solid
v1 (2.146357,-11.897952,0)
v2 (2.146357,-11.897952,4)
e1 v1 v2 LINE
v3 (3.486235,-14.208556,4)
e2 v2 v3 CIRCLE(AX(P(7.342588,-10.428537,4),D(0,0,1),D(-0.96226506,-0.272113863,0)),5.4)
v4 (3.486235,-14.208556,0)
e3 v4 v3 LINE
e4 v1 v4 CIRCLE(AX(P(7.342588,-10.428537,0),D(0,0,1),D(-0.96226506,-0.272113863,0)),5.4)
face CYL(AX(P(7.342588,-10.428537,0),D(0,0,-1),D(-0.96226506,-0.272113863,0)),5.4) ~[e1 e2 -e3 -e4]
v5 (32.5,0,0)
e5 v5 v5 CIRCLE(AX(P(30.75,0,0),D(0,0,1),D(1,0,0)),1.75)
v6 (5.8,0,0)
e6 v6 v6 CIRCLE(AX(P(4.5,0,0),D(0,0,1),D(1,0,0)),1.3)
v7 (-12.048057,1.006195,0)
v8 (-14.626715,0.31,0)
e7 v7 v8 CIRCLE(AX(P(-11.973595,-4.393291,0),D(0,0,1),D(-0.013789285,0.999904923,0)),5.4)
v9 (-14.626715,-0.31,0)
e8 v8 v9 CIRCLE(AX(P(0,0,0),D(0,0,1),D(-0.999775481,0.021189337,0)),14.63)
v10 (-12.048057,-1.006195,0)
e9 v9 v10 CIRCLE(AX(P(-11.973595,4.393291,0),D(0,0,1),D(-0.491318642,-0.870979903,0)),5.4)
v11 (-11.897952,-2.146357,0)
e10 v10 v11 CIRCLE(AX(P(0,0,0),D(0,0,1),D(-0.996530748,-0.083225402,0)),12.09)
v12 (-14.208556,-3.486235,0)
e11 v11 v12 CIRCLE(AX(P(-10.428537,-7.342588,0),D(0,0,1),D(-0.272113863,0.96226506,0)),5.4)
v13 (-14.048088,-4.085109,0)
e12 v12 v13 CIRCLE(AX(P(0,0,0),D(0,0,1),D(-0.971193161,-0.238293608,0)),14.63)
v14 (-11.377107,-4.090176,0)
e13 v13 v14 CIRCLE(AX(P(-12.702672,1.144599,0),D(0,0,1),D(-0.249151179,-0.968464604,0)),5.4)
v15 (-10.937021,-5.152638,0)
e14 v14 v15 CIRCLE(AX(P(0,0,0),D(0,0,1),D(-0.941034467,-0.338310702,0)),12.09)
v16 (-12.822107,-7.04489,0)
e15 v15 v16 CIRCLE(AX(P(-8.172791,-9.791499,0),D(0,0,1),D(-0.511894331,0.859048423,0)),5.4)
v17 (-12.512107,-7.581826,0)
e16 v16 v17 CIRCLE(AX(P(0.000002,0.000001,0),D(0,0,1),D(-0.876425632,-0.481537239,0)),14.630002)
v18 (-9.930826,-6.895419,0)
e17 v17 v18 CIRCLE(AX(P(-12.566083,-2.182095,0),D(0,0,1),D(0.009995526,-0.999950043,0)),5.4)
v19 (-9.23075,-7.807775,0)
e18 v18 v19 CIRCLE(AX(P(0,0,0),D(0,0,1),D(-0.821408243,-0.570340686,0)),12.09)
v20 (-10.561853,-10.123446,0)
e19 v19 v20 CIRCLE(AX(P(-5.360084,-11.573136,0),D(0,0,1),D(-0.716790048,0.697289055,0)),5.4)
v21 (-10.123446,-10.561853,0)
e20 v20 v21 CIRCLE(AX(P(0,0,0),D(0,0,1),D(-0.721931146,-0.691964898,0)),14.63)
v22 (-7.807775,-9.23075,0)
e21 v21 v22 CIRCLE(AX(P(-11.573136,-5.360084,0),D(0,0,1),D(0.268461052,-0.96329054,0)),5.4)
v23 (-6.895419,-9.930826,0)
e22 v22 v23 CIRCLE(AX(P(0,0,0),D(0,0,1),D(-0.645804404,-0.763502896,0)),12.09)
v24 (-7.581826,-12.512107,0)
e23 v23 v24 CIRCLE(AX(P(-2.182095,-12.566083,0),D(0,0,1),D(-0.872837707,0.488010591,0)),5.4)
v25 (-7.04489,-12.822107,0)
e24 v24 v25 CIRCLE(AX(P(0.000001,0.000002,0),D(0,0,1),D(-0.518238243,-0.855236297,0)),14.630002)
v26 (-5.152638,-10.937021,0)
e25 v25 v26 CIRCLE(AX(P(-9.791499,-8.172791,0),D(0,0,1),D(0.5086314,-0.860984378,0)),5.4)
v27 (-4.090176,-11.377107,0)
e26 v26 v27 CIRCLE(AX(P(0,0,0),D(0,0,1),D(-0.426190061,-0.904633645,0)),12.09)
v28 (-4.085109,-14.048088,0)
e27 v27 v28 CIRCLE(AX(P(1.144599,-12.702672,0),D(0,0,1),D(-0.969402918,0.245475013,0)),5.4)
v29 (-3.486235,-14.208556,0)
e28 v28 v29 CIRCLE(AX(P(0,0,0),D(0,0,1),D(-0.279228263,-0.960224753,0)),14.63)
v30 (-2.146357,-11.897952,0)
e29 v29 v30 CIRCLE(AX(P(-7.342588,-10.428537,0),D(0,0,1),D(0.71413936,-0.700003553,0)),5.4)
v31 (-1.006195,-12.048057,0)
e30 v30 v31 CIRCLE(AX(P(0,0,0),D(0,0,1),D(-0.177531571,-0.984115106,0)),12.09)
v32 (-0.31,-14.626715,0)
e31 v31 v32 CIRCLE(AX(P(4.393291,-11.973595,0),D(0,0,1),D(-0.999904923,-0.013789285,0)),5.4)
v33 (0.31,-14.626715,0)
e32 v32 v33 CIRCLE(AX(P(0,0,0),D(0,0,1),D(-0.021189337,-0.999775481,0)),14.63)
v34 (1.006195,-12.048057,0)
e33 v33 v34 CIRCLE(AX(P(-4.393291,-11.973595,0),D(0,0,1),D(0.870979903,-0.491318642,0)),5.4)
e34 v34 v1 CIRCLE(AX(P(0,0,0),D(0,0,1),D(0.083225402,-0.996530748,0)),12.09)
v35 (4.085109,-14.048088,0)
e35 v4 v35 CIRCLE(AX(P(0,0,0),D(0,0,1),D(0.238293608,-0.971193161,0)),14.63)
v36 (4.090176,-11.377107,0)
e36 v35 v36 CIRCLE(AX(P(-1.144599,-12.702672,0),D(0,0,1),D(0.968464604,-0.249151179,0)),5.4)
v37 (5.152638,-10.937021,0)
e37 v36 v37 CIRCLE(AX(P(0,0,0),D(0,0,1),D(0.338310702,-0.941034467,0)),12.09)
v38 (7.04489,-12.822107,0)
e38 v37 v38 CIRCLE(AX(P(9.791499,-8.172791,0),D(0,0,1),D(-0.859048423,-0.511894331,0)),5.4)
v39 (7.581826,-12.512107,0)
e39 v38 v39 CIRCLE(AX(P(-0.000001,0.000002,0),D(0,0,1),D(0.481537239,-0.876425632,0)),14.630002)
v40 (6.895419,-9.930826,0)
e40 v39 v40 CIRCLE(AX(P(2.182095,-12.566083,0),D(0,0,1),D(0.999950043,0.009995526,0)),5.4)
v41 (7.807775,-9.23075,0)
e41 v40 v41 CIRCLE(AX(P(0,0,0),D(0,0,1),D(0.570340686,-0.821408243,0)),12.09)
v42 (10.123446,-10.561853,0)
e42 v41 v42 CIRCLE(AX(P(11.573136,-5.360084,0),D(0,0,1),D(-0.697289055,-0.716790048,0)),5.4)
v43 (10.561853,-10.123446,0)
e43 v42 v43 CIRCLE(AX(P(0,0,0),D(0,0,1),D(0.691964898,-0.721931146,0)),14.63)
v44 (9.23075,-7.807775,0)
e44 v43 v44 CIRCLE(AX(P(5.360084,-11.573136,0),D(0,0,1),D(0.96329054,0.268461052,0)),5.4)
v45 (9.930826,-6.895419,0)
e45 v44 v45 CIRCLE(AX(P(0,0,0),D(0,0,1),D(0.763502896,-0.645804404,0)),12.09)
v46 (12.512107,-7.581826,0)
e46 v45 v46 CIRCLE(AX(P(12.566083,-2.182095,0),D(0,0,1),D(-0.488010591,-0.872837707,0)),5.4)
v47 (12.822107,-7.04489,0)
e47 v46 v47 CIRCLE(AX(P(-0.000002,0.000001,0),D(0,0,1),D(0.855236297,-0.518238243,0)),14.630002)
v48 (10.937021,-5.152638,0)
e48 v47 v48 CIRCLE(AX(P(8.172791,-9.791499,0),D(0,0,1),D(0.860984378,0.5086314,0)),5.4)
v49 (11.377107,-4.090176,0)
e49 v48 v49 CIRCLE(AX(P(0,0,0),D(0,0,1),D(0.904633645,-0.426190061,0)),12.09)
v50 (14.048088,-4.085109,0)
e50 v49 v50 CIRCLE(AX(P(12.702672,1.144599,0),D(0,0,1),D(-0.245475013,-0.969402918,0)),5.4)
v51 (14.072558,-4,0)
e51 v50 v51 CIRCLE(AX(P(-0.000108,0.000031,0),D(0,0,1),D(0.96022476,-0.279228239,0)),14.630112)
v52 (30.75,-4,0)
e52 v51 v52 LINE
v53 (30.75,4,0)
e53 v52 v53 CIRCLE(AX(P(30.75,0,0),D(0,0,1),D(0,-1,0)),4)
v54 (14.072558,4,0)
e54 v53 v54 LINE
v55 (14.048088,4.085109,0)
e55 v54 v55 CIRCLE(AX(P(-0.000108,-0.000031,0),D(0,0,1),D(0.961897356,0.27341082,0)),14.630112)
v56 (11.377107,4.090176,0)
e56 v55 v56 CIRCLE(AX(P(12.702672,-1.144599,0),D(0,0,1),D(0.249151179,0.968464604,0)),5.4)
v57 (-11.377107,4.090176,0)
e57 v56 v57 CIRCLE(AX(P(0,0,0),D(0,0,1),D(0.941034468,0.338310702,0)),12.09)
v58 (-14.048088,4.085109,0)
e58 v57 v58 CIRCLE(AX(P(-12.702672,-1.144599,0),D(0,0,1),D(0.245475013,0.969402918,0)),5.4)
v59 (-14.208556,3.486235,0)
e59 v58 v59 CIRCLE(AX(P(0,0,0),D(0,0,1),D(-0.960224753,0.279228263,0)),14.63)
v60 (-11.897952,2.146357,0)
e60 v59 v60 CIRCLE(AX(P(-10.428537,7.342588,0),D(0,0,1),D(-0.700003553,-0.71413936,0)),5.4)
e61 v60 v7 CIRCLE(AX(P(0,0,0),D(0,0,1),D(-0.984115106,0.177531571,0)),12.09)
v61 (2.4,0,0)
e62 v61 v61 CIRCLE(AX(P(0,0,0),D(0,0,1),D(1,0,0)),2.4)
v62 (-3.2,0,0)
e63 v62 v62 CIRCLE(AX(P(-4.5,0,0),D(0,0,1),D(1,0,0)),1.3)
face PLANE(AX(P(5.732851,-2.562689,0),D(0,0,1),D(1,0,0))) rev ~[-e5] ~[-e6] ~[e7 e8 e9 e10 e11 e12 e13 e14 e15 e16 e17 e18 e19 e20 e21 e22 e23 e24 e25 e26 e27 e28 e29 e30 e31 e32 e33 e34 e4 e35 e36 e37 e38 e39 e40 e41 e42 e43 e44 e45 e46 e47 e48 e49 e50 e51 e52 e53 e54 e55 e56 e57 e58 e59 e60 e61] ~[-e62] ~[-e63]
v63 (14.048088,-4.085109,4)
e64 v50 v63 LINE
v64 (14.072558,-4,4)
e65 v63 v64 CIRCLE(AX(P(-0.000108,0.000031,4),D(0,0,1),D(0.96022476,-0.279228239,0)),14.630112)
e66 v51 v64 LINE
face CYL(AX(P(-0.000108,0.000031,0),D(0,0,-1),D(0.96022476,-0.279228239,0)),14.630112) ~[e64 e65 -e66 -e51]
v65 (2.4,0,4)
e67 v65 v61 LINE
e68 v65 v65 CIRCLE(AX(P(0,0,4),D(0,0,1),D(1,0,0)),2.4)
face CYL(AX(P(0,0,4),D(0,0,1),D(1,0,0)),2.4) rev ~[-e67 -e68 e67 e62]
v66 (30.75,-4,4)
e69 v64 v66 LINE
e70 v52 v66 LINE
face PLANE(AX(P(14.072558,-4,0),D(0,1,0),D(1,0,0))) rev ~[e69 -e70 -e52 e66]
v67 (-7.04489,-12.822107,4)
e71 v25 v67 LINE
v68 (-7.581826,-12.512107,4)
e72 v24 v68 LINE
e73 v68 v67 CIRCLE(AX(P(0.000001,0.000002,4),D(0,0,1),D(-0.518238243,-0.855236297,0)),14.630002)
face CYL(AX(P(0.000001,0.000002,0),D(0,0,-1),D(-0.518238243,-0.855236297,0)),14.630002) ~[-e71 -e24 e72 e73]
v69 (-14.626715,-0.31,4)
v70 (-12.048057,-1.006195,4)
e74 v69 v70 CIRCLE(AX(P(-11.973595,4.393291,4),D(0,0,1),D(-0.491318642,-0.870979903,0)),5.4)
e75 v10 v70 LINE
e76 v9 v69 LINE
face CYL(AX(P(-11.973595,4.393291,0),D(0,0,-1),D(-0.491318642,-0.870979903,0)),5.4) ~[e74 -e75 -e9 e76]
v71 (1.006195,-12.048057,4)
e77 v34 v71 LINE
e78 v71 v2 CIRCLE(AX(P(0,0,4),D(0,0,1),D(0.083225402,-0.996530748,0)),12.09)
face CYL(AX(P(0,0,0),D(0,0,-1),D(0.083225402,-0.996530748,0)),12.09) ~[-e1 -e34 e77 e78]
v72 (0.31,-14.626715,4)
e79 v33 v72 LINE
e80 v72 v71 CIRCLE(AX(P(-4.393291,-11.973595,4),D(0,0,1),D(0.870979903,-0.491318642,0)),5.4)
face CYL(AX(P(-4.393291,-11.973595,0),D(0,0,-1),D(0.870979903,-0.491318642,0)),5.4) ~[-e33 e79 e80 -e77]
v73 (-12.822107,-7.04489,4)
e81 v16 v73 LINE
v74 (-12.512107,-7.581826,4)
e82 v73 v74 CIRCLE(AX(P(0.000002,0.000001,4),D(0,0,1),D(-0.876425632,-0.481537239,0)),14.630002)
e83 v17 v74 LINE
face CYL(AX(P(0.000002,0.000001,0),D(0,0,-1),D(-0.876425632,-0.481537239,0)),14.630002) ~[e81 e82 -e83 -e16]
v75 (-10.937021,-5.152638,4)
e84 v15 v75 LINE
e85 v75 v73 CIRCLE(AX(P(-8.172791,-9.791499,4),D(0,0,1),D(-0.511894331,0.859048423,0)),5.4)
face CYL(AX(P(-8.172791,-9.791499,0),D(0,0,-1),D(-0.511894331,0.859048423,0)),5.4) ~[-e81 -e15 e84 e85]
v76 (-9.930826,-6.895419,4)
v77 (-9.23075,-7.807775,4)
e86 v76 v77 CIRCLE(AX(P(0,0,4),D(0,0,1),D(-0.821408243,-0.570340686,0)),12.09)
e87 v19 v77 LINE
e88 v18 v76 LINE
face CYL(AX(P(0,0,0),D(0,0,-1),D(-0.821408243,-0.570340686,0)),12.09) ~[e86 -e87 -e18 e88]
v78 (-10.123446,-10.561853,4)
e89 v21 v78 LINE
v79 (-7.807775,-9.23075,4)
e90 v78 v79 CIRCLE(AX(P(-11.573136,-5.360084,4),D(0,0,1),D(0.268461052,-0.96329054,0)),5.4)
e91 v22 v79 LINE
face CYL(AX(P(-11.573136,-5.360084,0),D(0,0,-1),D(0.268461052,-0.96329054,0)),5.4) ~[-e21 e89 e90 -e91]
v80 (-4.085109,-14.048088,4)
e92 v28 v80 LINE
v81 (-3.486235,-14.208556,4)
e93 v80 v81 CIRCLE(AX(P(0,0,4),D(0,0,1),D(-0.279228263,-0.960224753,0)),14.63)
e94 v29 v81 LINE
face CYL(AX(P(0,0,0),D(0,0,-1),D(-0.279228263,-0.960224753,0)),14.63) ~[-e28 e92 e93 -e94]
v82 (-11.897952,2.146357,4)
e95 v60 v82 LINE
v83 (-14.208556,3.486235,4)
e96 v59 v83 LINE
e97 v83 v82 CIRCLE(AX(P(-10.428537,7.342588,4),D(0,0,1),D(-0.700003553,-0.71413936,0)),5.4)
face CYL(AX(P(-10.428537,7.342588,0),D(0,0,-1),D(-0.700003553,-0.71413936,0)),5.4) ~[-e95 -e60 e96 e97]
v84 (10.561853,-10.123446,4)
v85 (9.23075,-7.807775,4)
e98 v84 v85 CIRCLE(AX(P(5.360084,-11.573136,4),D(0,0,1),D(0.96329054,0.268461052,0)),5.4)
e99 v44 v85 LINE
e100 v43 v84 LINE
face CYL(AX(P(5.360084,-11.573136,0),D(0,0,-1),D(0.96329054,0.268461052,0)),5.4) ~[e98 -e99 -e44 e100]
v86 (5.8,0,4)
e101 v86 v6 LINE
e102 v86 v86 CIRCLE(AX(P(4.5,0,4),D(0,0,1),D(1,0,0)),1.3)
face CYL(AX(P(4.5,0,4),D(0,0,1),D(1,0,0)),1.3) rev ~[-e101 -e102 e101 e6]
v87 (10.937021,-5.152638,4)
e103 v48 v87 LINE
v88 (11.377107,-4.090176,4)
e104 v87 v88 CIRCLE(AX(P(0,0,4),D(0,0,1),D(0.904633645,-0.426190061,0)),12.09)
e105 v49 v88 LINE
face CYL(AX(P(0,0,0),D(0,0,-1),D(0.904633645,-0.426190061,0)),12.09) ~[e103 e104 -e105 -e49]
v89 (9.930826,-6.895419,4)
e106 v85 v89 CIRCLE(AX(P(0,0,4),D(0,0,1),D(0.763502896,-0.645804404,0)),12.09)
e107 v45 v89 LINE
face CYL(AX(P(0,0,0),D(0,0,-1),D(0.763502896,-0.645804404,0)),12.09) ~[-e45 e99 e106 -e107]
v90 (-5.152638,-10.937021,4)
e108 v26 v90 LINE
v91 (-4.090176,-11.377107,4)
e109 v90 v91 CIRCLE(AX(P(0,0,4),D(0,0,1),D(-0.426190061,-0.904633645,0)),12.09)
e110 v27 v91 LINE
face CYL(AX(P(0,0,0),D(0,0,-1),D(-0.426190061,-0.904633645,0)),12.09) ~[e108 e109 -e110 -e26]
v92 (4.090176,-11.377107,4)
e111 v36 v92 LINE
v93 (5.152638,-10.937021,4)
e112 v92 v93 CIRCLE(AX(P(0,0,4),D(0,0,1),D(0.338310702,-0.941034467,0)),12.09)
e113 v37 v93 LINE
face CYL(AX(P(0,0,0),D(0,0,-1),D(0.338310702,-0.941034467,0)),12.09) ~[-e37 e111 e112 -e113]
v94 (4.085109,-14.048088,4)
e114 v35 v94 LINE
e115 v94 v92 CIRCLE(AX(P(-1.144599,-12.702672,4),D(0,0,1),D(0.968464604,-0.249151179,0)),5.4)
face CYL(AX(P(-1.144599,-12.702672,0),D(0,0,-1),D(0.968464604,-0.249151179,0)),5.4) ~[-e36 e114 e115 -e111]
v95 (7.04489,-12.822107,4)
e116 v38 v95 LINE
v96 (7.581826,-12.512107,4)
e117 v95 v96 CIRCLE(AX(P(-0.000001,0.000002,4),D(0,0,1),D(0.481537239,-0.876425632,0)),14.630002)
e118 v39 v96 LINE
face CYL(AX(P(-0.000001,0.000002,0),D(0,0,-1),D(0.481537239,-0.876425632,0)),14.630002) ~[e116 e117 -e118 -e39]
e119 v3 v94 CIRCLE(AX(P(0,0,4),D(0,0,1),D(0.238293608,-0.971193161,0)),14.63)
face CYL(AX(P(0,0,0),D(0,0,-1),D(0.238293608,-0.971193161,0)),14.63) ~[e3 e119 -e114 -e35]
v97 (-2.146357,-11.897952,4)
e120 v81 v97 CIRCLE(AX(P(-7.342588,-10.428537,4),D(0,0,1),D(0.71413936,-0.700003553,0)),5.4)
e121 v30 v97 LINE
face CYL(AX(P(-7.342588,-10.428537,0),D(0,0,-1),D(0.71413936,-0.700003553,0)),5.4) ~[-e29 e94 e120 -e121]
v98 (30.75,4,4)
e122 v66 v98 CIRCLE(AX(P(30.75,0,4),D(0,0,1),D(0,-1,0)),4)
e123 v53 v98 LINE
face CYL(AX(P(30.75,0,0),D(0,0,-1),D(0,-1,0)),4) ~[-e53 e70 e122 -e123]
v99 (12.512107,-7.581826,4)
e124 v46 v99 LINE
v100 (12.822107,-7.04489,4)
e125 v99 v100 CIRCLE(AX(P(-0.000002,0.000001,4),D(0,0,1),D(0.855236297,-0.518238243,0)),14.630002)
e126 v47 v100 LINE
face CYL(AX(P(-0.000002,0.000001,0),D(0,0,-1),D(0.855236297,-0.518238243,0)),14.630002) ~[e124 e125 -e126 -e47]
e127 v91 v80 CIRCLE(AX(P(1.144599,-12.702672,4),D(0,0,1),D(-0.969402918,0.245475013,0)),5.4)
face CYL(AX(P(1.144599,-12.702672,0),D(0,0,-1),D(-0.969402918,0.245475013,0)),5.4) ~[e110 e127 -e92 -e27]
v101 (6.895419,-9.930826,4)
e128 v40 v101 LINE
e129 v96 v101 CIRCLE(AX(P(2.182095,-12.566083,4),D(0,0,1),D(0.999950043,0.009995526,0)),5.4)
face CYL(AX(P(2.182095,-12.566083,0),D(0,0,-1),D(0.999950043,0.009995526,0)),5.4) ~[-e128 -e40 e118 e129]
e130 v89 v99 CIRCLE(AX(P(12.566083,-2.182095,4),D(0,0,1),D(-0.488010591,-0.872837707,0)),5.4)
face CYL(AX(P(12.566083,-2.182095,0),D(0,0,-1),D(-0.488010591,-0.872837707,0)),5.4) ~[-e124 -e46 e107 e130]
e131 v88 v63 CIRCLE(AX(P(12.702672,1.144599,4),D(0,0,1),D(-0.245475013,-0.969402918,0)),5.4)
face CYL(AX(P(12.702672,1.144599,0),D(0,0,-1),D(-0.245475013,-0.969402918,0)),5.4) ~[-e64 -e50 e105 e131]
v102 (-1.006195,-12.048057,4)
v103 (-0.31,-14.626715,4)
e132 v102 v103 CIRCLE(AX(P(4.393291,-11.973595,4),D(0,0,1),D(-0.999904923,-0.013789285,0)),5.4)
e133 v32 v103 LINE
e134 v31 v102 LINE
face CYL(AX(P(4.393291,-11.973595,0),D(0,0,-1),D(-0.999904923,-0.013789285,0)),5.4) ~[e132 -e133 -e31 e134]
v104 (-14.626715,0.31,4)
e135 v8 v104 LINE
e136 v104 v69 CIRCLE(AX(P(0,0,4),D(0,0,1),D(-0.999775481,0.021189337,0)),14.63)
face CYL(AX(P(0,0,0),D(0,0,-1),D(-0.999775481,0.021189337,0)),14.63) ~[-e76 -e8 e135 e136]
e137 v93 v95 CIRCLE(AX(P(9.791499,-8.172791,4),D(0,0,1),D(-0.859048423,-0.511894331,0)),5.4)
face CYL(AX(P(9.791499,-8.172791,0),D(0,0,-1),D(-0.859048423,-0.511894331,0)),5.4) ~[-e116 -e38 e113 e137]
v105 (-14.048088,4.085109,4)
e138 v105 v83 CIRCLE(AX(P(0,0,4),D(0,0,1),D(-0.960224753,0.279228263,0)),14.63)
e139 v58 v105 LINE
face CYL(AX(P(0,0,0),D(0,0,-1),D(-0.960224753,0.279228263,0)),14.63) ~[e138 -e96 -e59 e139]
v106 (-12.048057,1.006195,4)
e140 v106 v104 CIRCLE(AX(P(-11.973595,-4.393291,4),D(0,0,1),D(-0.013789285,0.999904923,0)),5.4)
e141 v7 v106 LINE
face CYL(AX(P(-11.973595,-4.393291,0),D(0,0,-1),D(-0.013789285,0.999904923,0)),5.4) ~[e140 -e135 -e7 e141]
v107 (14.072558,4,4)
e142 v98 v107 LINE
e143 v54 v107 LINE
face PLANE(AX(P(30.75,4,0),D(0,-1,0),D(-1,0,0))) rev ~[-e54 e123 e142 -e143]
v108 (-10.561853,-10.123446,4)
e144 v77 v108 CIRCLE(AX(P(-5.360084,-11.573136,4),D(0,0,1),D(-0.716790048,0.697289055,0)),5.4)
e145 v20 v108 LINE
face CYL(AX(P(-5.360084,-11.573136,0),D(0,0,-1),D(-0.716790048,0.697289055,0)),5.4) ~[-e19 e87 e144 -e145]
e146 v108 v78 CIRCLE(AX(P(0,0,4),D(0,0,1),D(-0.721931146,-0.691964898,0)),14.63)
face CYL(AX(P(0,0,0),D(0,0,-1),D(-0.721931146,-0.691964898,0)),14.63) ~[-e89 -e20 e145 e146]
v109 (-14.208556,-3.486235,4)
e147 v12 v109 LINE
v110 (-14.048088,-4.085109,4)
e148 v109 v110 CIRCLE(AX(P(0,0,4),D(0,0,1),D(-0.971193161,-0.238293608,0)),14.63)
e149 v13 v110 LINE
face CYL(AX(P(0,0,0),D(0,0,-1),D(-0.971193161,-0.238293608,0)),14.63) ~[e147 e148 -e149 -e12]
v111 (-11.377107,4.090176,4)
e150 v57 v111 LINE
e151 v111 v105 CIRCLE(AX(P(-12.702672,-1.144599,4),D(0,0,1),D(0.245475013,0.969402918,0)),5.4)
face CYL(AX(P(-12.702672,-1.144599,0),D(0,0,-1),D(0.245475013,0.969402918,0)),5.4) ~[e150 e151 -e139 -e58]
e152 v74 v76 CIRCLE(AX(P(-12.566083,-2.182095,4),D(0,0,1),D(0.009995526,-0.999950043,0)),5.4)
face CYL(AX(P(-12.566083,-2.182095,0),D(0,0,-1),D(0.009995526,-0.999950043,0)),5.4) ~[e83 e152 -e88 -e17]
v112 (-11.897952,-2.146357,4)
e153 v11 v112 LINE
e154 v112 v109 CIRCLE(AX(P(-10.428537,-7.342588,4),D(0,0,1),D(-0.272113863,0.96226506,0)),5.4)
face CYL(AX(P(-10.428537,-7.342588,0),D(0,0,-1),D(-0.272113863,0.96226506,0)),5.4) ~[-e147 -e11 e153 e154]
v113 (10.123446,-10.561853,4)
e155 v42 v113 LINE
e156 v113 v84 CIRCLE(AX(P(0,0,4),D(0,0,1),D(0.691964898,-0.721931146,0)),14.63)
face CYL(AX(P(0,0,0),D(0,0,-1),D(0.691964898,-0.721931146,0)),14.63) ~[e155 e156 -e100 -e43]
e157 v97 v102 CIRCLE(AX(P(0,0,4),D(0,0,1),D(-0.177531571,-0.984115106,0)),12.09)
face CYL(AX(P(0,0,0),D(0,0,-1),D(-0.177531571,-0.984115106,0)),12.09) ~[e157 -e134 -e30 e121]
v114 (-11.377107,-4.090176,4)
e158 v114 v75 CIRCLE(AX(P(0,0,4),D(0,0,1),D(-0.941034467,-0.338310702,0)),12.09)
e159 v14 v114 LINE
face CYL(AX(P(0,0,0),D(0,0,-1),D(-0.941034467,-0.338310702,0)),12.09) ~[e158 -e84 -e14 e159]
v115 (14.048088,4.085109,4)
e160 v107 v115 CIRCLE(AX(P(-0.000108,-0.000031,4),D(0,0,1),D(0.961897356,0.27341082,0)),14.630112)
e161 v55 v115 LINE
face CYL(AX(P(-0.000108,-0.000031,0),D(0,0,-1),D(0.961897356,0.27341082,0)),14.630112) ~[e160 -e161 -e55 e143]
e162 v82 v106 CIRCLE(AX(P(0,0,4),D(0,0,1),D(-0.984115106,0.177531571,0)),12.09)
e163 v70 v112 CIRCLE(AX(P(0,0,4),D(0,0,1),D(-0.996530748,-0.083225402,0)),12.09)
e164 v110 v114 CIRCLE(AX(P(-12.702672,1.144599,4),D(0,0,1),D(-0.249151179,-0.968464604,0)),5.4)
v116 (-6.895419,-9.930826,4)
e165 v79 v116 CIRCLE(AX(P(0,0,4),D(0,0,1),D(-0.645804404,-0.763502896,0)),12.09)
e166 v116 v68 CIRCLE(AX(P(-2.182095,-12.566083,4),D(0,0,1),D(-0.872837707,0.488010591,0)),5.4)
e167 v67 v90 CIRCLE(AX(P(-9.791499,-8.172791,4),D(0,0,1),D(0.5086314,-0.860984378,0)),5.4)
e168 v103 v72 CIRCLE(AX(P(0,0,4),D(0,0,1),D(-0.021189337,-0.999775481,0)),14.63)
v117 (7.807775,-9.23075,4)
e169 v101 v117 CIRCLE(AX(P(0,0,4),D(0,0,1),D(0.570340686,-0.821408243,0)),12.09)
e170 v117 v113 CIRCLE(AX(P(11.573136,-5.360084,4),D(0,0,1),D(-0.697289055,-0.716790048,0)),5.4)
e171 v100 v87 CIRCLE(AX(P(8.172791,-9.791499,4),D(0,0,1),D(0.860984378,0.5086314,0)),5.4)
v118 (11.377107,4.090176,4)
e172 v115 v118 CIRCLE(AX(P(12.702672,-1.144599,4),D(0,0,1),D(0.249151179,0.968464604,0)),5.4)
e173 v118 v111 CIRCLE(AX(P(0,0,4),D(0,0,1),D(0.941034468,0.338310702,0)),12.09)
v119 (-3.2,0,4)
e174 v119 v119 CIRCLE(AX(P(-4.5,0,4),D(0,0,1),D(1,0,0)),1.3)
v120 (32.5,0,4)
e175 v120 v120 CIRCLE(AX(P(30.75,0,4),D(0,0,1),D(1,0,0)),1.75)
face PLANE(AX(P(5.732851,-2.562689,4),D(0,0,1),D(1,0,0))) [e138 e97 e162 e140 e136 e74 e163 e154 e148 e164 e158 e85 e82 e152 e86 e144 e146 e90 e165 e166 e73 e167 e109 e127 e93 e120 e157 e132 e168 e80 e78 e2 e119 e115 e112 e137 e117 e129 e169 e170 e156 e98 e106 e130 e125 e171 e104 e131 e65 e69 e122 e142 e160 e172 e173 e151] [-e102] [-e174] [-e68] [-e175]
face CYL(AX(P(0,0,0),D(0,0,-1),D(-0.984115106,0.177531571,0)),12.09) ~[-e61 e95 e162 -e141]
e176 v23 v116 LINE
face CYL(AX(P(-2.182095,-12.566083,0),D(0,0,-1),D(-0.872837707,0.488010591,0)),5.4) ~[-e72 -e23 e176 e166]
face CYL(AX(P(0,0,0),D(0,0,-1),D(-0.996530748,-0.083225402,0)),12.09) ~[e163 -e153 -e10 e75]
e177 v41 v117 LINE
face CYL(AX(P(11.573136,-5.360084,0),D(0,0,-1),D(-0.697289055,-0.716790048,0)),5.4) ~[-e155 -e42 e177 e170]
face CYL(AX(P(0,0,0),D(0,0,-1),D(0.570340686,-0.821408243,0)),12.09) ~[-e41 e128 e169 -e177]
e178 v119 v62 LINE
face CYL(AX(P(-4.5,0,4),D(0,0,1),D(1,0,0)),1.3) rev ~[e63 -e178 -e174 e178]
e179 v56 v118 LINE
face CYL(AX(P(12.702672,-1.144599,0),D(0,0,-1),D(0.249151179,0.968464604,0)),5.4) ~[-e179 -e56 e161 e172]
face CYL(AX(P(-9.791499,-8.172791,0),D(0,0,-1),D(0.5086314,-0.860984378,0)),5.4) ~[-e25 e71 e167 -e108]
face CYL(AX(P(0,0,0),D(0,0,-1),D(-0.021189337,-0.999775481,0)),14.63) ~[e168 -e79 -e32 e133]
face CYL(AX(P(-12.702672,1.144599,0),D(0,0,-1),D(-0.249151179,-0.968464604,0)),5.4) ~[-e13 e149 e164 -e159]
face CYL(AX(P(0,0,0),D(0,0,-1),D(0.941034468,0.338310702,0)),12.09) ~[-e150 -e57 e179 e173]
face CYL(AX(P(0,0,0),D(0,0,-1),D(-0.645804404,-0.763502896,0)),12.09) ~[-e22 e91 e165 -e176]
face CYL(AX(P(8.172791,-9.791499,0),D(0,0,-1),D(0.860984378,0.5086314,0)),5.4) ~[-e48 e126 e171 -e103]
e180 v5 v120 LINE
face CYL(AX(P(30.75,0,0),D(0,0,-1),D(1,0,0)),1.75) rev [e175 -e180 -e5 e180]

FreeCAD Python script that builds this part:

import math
import FreeCAD as App
import Part
import Sketcher

V = App.Vector

doc = App.newDocument("Part")
params = doc.addObject("Spreadsheet::Sheet", "Params")
for row, (alias, value) in enumerate([
    ("sketch1_radius", "4 mm"),
    ("sketch1_diameter", "3.5 mm"),
    ("sketch1_diameter2", "3.5 mm"),
    ("sketch1_radius2", "5.4 mm"),
    ("sketch1_radius3", "5.4 mm"),
    ("pad1_length", "4 mm"),
    ("sketch2_diameter", "2.6 mm"),
    ("sketch2_diameter2", "4.8 mm"),
], start=1):
    params.set(f"A{row}", alias)
    params.set(f"B{row}", "=" + value)
    params.setAlias(f"B{row}", alias)

body = doc.addObject("PartDesign::Body", "Body")

# Sketch on XY plane
sketch1 = body.newObject("Sketcher::SketchObject", "Sketch")
sketch1.AttachmentSupport = (doc.getObject("XY_Plane"), [""])
sketch1.MapMode = "FlatFace"
sketch1.addGeometry(Part.ArcOfCircle(Part.Circle(V(-0.000108, 0.000031, 0), V(0, 0, 1), 14.630112), math.radians(-16.214149), math.radians(-15.867332)), False)
sketch1.addGeometry(Part.LineSegment(V(14.072558, -4, 0), V(30.75, -4, 0)), False)
sketch1.addGeometry(Part.ArcOfCircle(Part.Circle(V(30.75, 0, 0), V(0, 0, 1), 4), math.radians(-90), math.radians(90)), False)
sketch1.addGeometry(Part.LineSegment(V(30.75, 4, 0), V(14.072558, 4, 0)), False)
sketch1.addGeometry(Part.ArcOfCircle(Part.Circle(V(-0.000108, -0.000031, 0), V(0, 0, 1), 14.630112), math.radians(15.867332), math.radians(16.214149)), False)
sketch1.addGeometry(Part.ArcOfCircle(Part.Circle(V(12.702672, -1.144599, 0), V(0, 0, 1), 5.4), math.radians(75.572711), math.radians(104.209907)), False)
sketch1.addGeometry(Part.ArcOfCircle(Part.Circle(V(0, 0, 0), V(0, 0, 1), 12.09), math.radians(19.773986), math.radians(160.226014)), False)
sketch1.addGeometry(Part.ArcOfCircle(Part.Circle(V(-12.702672, -1.144599, 0), V(0, 0, 1), 5.4), math.radians(75.790093), math.radians(104.427289)), False)
sketch1.addGeometry(Part.ArcOfCircle(Part.Circle(V(0, 0, 0), V(0, 0, 1), 14.63), math.radians(163.78585), math.radians(166.21415)), False)
sketch1.addGeometry(Part.ArcOfCircle(Part.Circle(V(-10.428537, 7.342588, 0), V(0, 0, 1), 5.4), math.radians(-134.427289), math.radians(-105.790093)), False)
sketch1.addGeometry(Part.ArcOfCircle(Part.Circle(V(0, 0, 0), V(0, 0, 1), 12.09), math.radians(169.773986), math.radians(175.226014)), False)
sketch1.addGeometry(Part.ArcOfCircle(Part.Circle(V(-11.973595, -4.393291, 0), V(0, 0, 1), 5.4), math.radians(90.790093), math.radians(119.427289)), False)
sketch1.addGeometry(Part.ArcOfCircle(Part.Circle(V(0, 0, 0), V(0, 0, 1), 14.63), math.radians(178.78585), math.radians(181.21415)), False)
sketch1.addGeometry(Part.ArcOfCircle(Part.Circle(V(-11.973595, 4.393291, 0), V(0, 0, 1), 5.4), math.radians(-119.427289), math.radians(-90.790093)), False)
sketch1.addGeometry(Part.ArcOfCircle(Part.Circle(V(0, 0, 0), V(0, 0, 1), 12.09), math.radians(-175.226014), math.radians(-169.773986)), False)
sketch1.addGeometry(Part.ArcOfCircle(Part.Circle(V(-10.428537, -7.342588, 0), V(0, 0, 1), 5.4), math.radians(105.790093), math.radians(134.427289)), False)
sketch1.addGeometry(Part.ArcOfCircle(Part.Circle(V(0, 0, 0), V(0, 0, 1), 14.63), math.radians(-166.21415), math.radians(-163.78585)), False)
sketch1.addGeometry(Part.ArcOfCircle(Part.Circle(V(-12.702672, 1.144599, 0), V(0, 0, 1), 5.4), math.radians(-104.427289), math.radians(-75.790093)), False)
sketch1.addGeometry(Part.ArcOfCircle(Part.Circle(V(0, 0, 0), V(0, 0, 1), 12.09), math.radians(-160.226014), math.radians(-154.773986)), False)
sketch1.addGeometry(Part.ArcOfCircle(Part.Circle(V(-8.172791, -9.791499, 0), V(0, 0, 1), 5.4), math.radians(120.790093), math.radians(149.427289)), False)
sketch1.addGeometry(Part.ArcOfCircle(Part.Circle(V(0.000002, 0.000001, 0), V(0, 0, 1), 14.630002), math.radians(-151.21415), math.radians(-148.78585)), False)
sketch1.addGeometry(Part.ArcOfCircle(Part.Circle(V(-12.566083, -2.182095, 0), V(0, 0, 1), 5.4), math.radians(-89.427289), math.radians(-60.790093)), False)
sketch1.addGeometry(Part.ArcOfCircle(Part.Circle(V(0, 0, 0), V(0, 0, 1), 12.09), math.radians(-145.226014), math.radians(-139.773986)), False)
sketch1.addGeometry(Part.ArcOfCircle(Part.Circle(V(-5.360084, -11.573136, 0), V(0, 0, 1), 5.4), math.radians(135.790093), math.radians(164.427289)), False)
sketch1.addGeometry(Part.ArcOfCircle(Part.Circle(V(0, 0, 0), V(0, 0, 1), 14.63), math.radians(-136.21415), math.radians(-133.78585)), False)
sketch1.addGeometry(Part.ArcOfCircle(Part.Circle(V(-11.573136, -5.360084, 0), V(0, 0, 1), 5.4), math.radians(-74.427289), math.radians(-45.790093)), False)
sketch1.addGeometry(Part.ArcOfCircle(Part.Circle(V(0, 0, 0), V(0, 0, 1), 12.09), math.radians(-130.226014), math.radians(-124.773986)), False)
sketch1.addGeometry(Part.ArcOfCircle(Part.Circle(V(-2.182095, -12.566083, 0), V(0, 0, 1), 5.4), math.radians(150.790093), math.radians(179.427289)), False)
sketch1.addGeometry(Part.ArcOfCircle(Part.Circle(V(0.000001, 0.000002, 0), V(0, 0, 1), 14.630002), math.radians(-121.21415), math.radians(-118.78585)), False)
sketch1.addGeometry(Part.ArcOfCircle(Part.Circle(V(-9.791499, -8.172791, 0), V(0, 0, 1), 5.4), math.radians(-59.427289), math.radians(-30.790093)), False)
sketch1.addGeometry(Part.ArcOfCircle(Part.Circle(V(0, 0, 0), V(0, 0, 1), 12.09), math.radians(-115.226014), math.radians(-109.773986)), False)
sketch1.addGeometry(Part.ArcOfCircle(Part.Circle(V(1.144599, -12.702672, 0), V(0, 0, 1), 5.4), math.radians(165.790093), math.radians(194.427289)), False)
sketch1.addGeometry(Part.ArcOfCircle(Part.Circle(V(0, 0, 0), V(0, 0, 1), 14.63), math.radians(-106.21415), math.radians(-103.78585)), False)
sketch1.addGeometry(Part.ArcOfCircle(Part.Circle(V(-7.342588, -10.428537, 0), V(0, 0, 1), 5.4), math.radians(-44.427289), math.radians(-15.790093)), False)
sketch1.addGeometry(Part.ArcOfCircle(Part.Circle(V(0, 0, 0), V(0, 0, 1), 12.09), math.radians(-100.226014), math.radians(-94.773986)), False)
sketch1.addGeometry(Part.ArcOfCircle(Part.Circle(V(4.393291, -11.973595, 0), V(0, 0, 1), 5.4), math.radians(-179.209907), math.radians(-150.572711)), False)
sketch1.addGeometry(Part.ArcOfCircle(Part.Circle(V(0, 0, 0), V(0, 0, 1), 14.63), math.radians(-91.21415), math.radians(-88.78585)), False)
sketch1.addGeometry(Part.ArcOfCircle(Part.Circle(V(-4.393291, -11.973595, 0), V(0, 0, 1), 5.4), math.radians(-29.427289), math.radians(-0.790093)), False)
sketch1.addGeometry(Part.ArcOfCircle(Part.Circle(V(0, 0, 0), V(0, 0, 1), 12.09), math.radians(-85.226014), math.radians(-79.773986)), False)
sketch1.addGeometry(Part.ArcOfCircle(Part.Circle(V(7.342588, -10.428537, 0), V(0, 0, 1), 5.4), math.radians(-164.209907), math.radians(-135.572711)), False)
sketch1.addGeometry(Part.ArcOfCircle(Part.Circle(V(0, 0, 0), V(0, 0, 1), 14.63), math.radians(-76.21415), math.radians(-73.78585)), False)
sketch1.addGeometry(Part.ArcOfCircle(Part.Circle(V(-1.144599, -12.702672, 0), V(0, 0, 1), 5.4), math.radians(-14.427289), math.radians(14.209907)), False)
sketch1.addGeometry(Part.ArcOfCircle(Part.Circle(V(0, 0, 0), V(0, 0, 1), 12.09), math.radians(-70.226014), math.radians(-64.773986)), False)
sketch1.addGeometry(Part.ArcOfCircle(Part.Circle(V(9.791499, -8.172791, 0), V(0, 0, 1), 5.4), math.radians(-149.209907), math.radians(-120.572711)), False)
sketch1.addGeometry(Part.ArcOfCircle(Part.Circle(V(-0.000001, 0.000002, 0), V(0, 0, 1), 14.630002), math.radians(-61.21415), math.radians(-58.78585)), False)
sketch1.addGeometry(Part.ArcOfCircle(Part.Circle(V(2.182095, -12.566083, 0), V(0, 0, 1), 5.4), math.radians(0.572711), math.radians(29.209907)), False)
sketch1.addGeometry(Part.ArcOfCircle(Part.Circle(V(0, 0, 0), V(0, 0, 1), 12.09), math.radians(-55.226014), math.radians(-49.773986)), False)
sketch1.addGeometry(Part.ArcOfCircle(Part.Circle(V(11.573136, -5.360084, 0), V(0, 0, 1), 5.4), math.radians(-134.209907), math.radians(-105.572711)), False)
sketch1.addGeometry(Part.ArcOfCircle(Part.Circle(V(0, 0, 0), V(0, 0, 1), 14.63), math.radians(-46.21415), math.radians(-43.78585)), False)
sketch1.addGeometry(Part.ArcOfCircle(Part.Circle(V(5.360084, -11.573136, 0), V(0, 0, 1), 5.4), math.radians(15.572711), math.radians(44.209907)), False)
sketch1.addGeometry(Part.ArcOfCircle(Part.Circle(V(0, 0, 0), V(0, 0, 1), 12.09), math.radians(-40.226014), math.radians(-34.773986)), False)
sketch1.addGeometry(Part.ArcOfCircle(Part.Circle(V(12.566083, -2.182095, 0), V(0, 0, 1), 5.4), math.radians(-119.209907), math.radians(-90.572711)), False)
sketch1.addGeometry(Part.ArcOfCircle(Part.Circle(V(-0.000002, 0.000001, 0), V(0, 0, 1), 14.630002), math.radians(-31.21415), math.radians(-28.78585)), False)
sketch1.addGeometry(Part.ArcOfCircle(Part.Circle(V(8.172791, -9.791499, 0), V(0, 0, 1), 5.4), math.radians(30.572711), math.radians(59.209907)), False)
sketch1.addGeometry(Part.ArcOfCircle(Part.Circle(V(0, 0, 0), V(0, 0, 1), 12.09), math.radians(-25.226014), math.radians(-19.773986)), False)
sketch1.addGeometry(Part.ArcOfCircle(Part.Circle(V(12.702672, 1.144599, 0), V(0, 0, 1), 5.4), math.radians(-104.209907), math.radians(-75.572711)), False)
sketch1.addGeometry(Part.Circle(V(0, 0, 0), V(0, 0, 1), 1.75), False)
sketch1.addGeometry(Part.Circle(V(30.75, 0, 0), V(0, 0, 1), 1.75), False)
sketch1.addConstraint(Sketcher.Constraint("Coincident", 0, 2, 1, 1))
sketch1.addConstraint(Sketcher.Constraint("Coincident", 1, 2, 2, 1))
sketch1.addConstraint(Sketcher.Constraint("Coincident", 2, 2, 3, 1))
sketch1.addConstraint(Sketcher.Constraint("Coincident", 3, 2, 4, 1))
sketch1.addConstraint(Sketcher.Constraint("Coincident", 4, 2, 5, 1))
sketch1.addConstraint(Sketcher.Constraint("Coincident", 5, 2, 6, 1))
sketch1.addConstraint(Sketcher.Constraint("Coincident", 6, 2, 7, 1))
sketch1.addConstraint(Sketcher.Constraint("Coincident", 7, 2, 8, 1))
sketch1.addConstraint(Sketcher.Constraint("Coincident", 8, 2, 9, 1))
sketch1.addConstraint(Sketcher.Constraint("Coincident", 9, 2, 10, 1))
sketch1.addConstraint(Sketcher.Constraint("Coincident", 10, 2, 11, 1))
sketch1.addConstraint(Sketcher.Constraint("Coincident", 11, 2, 12, 1))
sketch1.addConstraint(Sketcher.Constraint("Coincident", 12, 2, 13, 1))
sketch1.addConstraint(Sketcher.Constraint("Coincident", 13, 2, 14, 1))
sketch1.addConstraint(Sketcher.Constraint("Coincident", 14, 2, 15, 1))
sketch1.addConstraint(Sketcher.Constraint("Coincident", 15, 2, 16, 1))
sketch1.addConstraint(Sketcher.Constraint("Coincident", 16, 2, 17, 1))
sketch1.addConstraint(Sketcher.Constraint("Coincident", 17, 2, 18, 1))
sketch1.addConstraint(Sketcher.Constraint("Coincident", 18, 2, 19, 1))
sketch1.addConstraint(Sketcher.Constraint("Coincident", 19, 2, 20, 1))
sketch1.addConstraint(Sketcher.Constraint("Coincident", 20, 2, 21, 1))
sketch1.addConstraint(Sketcher.Constraint("Coincident", 21, 2, 22, 1))
sketch1.addConstraint(Sketcher.Constraint("Coincident", 22, 2, 23, 1))
sketch1.addConstraint(Sketcher.Constraint("Coincident", 23, 2, 24, 1))
sketch1.addConstraint(Sketcher.Constraint("Coincident", 24, 2, 25, 1))
sketch1.addConstraint(Sketcher.Constraint("Coincident", 25, 2, 26, 1))
sketch1.addConstraint(Sketcher.Constraint("Coincident", 26, 2, 27, 1))
sketch1.addConstraint(Sketcher.Constraint("Coincident", 27, 2, 28, 1))
sketch1.addConstraint(Sketcher.Constraint("Coincident", 28, 2, 29, 1))
sketch1.addConstraint(Sketcher.Constraint("Coincident", 29, 2, 30, 1))
sketch1.addConstraint(Sketcher.Constraint("Coincident", 30, 2, 31, 1))
sketch1.addConstraint(Sketcher.Constraint("Coincident", 31, 2, 32, 1))
sketch1.addConstraint(Sketcher.Constraint("Coincident", 32, 2, 33, 1))
sketch1.addConstraint(Sketcher.Constraint("Coincident", 33, 2, 34, 1))
sketch1.addConstraint(Sketcher.Constraint("Coincident", 34, 2, 35, 1))
sketch1.addConstraint(Sketcher.Constraint("Coincident", 35, 2, 36, 1))
sketch1.addConstraint(Sketcher.Constraint("Coincident", 36, 2, 37, 1))
sketch1.addConstraint(Sketcher.Constraint("Coincident", 37, 2, 38, 1))
sketch1.addConstraint(Sketcher.Constraint("Coincident", 38, 2, 39, 1))
sketch1.addConstraint(Sketcher.Constraint("Coincident", 39, 2, 40, 1))
sketch1.addConstraint(Sketcher.Constraint("Coincident", 40, 2, 41, 1))
sketch1.addConstraint(Sketcher.Constraint("Coincident", 41, 2, 42, 1))
sketch1.addConstraint(Sketcher.Constraint("Coincident", 42, 2, 43, 1))
sketch1.addConstraint(Sketcher.Constraint("Coincident", 43, 2, 44, 1))
sketch1.addConstraint(Sketcher.Constraint("Coincident", 44, 2, 45, 1))
sketch1.addConstraint(Sketcher.Constraint("Coincident", 45, 2, 46, 1))
sketch1.addConstraint(Sketcher.Constraint("Coincident", 46, 2, 47, 1))
sketch1.addConstraint(Sketcher.Constraint("Coincident", 47, 2, 48, 1))
sketch1.addConstraint(Sketcher.Constraint("Coincident", 48, 2, 49, 1))
sketch1.addConstraint(Sketcher.Constraint("Coincident", 49, 2, 50, 1))
sketch1.addConstraint(Sketcher.Constraint("Coincident", 50, 2, 51, 1))
sketch1.addConstraint(Sketcher.Constraint("Coincident", 51, 2, 52, 1))
sketch1.addConstraint(Sketcher.Constraint("Coincident", 52, 2, 53, 1))
sketch1.addConstraint(Sketcher.Constraint("Coincident", 53, 2, 54, 1))
sketch1.addConstraint(Sketcher.Constraint("Coincident", 54, 2, 55, 1))
sketch1.addConstraint(Sketcher.Constraint("Coincident", 55, 2, 0, 1))
sketch1.addConstraint(Sketcher.Constraint("Horizontal", 1))
sketch1.addConstraint(Sketcher.Constraint("Horizontal", 3))
sketch1.addConstraint(Sketcher.Constraint("Coincident", 6, 3, -1, 1))
sketch1.addConstraint(Sketcher.Constraint("Coincident", 8, 3, -1, 1))
sketch1.addConstraint(Sketcher.Constraint("Coincident", 10, 3, -1, 1))
sketch1.addConstraint(Sketcher.Constraint("Coincident", 12, 3, -1, 1))
sketch1.addConstraint(Sketcher.Constraint("Coincident", 14, 3, -1, 1))
sketch1.addConstraint(Sketcher.Constraint("Coincident", 16, 3, -1, 1))
sketch1.addConstraint(Sketcher.Constraint("Coincident", 18, 3, -1, 1))
sketch1.addConstraint(Sketcher.Constraint("Coincident", 20, 3, -1, 1))
sketch1.addConstraint(Sketcher.Constraint("Coincident", 22, 3, -1, 1))
sketch1.addConstraint(Sketcher.Constraint("Coincident", 24, 3, -1, 1))
sketch1.addConstraint(Sketcher.Constraint("Coincident", 26, 3, -1, 1))
sketch1.addConstraint(Sketcher.Constraint("Coincident", 28, 3, -1, 1))
sketch1.addConstraint(Sketcher.Constraint("Coincident", 30, 3, -1, 1))
sketch1.addConstraint(Sketcher.Constraint("Coincident", 32, 3, -1, 1))
sketch1.addConstraint(Sketcher.Constraint("Coincident", 34, 3, -1, 1))
sketch1.addConstraint(Sketcher.Constraint("Coincident", 36, 3, -1, 1))
sketch1.addConstraint(Sketcher.Constraint("Coincident", 38, 3, -1, 1))
sketch1.addConstraint(Sketcher.Constraint("Coincident", 40, 3, -1, 1))
sketch1.addConstraint(Sketcher.Constraint("Coincident", 42, 3, -1, 1))
sketch1.addConstraint(Sketcher.Constraint("Coincident", 44, 3, -1, 1))
sketch1.addConstraint(Sketcher.Constraint("Coincident", 46, 3, -1, 1))
sketch1.addConstraint(Sketcher.Constraint("Coincident", 48, 3, -1, 1))
sketch1.addConstraint(Sketcher.Constraint("Coincident", 50, 3, -1, 1))
sketch1.addConstraint(Sketcher.Constraint("Coincident", 52, 3, -1, 1))
sketch1.addConstraint(Sketcher.Constraint("Coincident", 54, 3, -1, 1))
sketch1.addConstraint(Sketcher.Constraint("Coincident", 56, 3, -1, 1))
sketch1.addConstraint(Sketcher.Constraint("Coincident", 57, 3, 2, 3))
sketch1.addConstraint(Sketcher.Constraint("PointOnObject", 2, 3, -1))
sketch1.addConstraint(Sketcher.Constraint("Radius", 2, 4.0))
sketch1.addConstraint(Sketcher.Constraint("Diameter", 56, 3.5))
sketch1.addConstraint(Sketcher.Constraint("Diameter", 57, 3.5))
sketch1.addConstraint(Sketcher.Constraint("Radius", 5, 5.4))
sketch1.addConstraint(Sketcher.Constraint("Radius", 7, 5.4))
sketch1.addConstraint(Sketcher.Constraint("Radius", 9, 5.4))
sketch1.addConstraint(Sketcher.Constraint("Radius", 11, 5.4))
sketch1.addConstraint(Sketcher.Constraint("Radius", 13, 5.4))
sketch1.addConstraint(Sketcher.Constraint("Radius", 15, 5.4))
sketch1.addConstraint(Sketcher.Constraint("Radius", 17, 5.4))
sketch1.addConstraint(Sketcher.Constraint("Radius", 19, 5.4))
sketch1.addConstraint(Sketcher.Constraint("Radius", 21, 5.4))
sketch1.addConstraint(Sketcher.Constraint("Radius", 23, 5.4))
sketch1.addConstraint(Sketcher.Constraint("Radius", 25, 5.4))
sketch1.addConstraint(Sketcher.Constraint("Radius", 27, 5.4))
sketch1.addConstraint(Sketcher.Constraint("Radius", 29, 5.4))
sketch1.addConstraint(Sketcher.Constraint("Radius", 31, 5.4))
sketch1.addConstraint(Sketcher.Constraint("Radius", 33, 5.4))
sketch1.addConstraint(Sketcher.Constraint("Radius", 35, 5.4))
sketch1.addConstraint(Sketcher.Constraint("Radius", 37, 5.4))
sketch1.addConstraint(Sketcher.Constraint("Radius", 39, 5.4))
sketch1.addConstraint(Sketcher.Constraint("Radius", 41, 5.4))
sketch1.addConstraint(Sketcher.Constraint("Radius", 43, 5.4))
sketch1.addConstraint(Sketcher.Constraint("Radius", 45, 5.4))
sketch1.addConstraint(Sketcher.Constraint("Radius", 47, 5.4))
sketch1.addConstraint(Sketcher.Constraint("Radius", 49, 5.4))
sketch1.addConstraint(Sketcher.Constraint("Radius", 51, 5.4))
sketch1.addConstraint(Sketcher.Constraint("Radius", 53, 5.4))
sketch1.addConstraint(Sketcher.Constraint("Radius", 55, 5.4))
sketch1.addConstraint(Sketcher.Constraint("Radius", 6, 12.09))
sketch1.addConstraint(Sketcher.Constraint("Radius", 8, 14.63))
sketch1.addConstraint(Sketcher.Constraint("Radius", 10, 12.09))
sketch1.addConstraint(Sketcher.Constraint("Radius", 12, 14.63))
sketch1.addConstraint(Sketcher.Constraint("Radius", 14, 12.09))
sketch1.addConstraint(Sketcher.Constraint("Radius", 16, 14.63))
sketch1.addConstraint(Sketcher.Constraint("Radius", 18, 12.09))
sketch1.addConstraint(Sketcher.Constraint("Radius", 20, 14.630002))
sketch1.addConstraint(Sketcher.Constraint("Radius", 22, 12.09))
sketch1.addConstraint(Sketcher.Constraint("Radius", 24, 14.63))
sketch1.addConstraint(Sketcher.Constraint("Radius", 26, 12.09))
sketch1.addConstraint(Sketcher.Constraint("Radius", 28, 14.630002))
sketch1.addConstraint(Sketcher.Constraint("Radius", 30, 12.09))
sketch1.addConstraint(Sketcher.Constraint("Radius", 32, 14.63))
sketch1.addConstraint(Sketcher.Constraint("Radius", 34, 12.09))
sketch1.addConstraint(Sketcher.Constraint("Radius", 36, 14.63))
sketch1.addConstraint(Sketcher.Constraint("Radius", 38, 12.09))
sketch1.addConstraint(Sketcher.Constraint("Radius", 40, 14.63))
sketch1.addConstraint(Sketcher.Constraint("Radius", 42, 12.09))
sketch1.addConstraint(Sketcher.Constraint("Radius", 44, 14.630002))
sketch1.addConstraint(Sketcher.Constraint("Radius", 46, 12.09))
sketch1.addConstraint(Sketcher.Constraint("Radius", 48, 14.63))
sketch1.addConstraint(Sketcher.Constraint("Radius", 50, 12.09))
sketch1.addConstraint(Sketcher.Constraint("Radius", 52, 14.630002))
sketch1.addConstraint(Sketcher.Constraint("Radius", 54, 12.09))
sketch1.addConstraint(Sketcher.Constraint("DistanceX", -1, 1, 2, 3, 30.75))
sketch1.addConstraint(Sketcher.Constraint("DistanceX", -1, 1, 1, 2, 30.75))
sketch1.addConstraint(Sketcher.Constraint("DistanceX", -1, 1, 2, 2, 30.75))
sketch1.addConstraint(Sketcher.Constraint("DistanceY", -1, 1, 11, 2, 0.31))
sketch1.addConstraint(Sketcher.Constraint("DistanceY", 12, 2, -1, 1, 0.31))
sketch1.addConstraint(Sketcher.Constraint("DistanceX", 35, 2, -1, 1, 0.31))
sketch1.addConstraint(Sketcher.Constraint("DistanceX", -1, 1, 36, 2, 0.31))
sketch1.addConstraint(Sketcher.Constraint("Radius", 0, 14.630112))
sketch1.addConstraint(Sketcher.Constraint("Radius", 4, 14.630112))
sketch1.addConstraint(Sketcher.Constraint("DistanceX", 1, 1, 1, 2, 16.677442))
sketch1.addConstraint(Sketcher.Constraint("DistanceX", 3, 2, 3, 1, 16.677442))
sketch1.addConstraint(Sketcher.Constraint("DistanceY", 5, 3, -1, 1, 1.144599))
sketch1.addConstraint(Sketcher.Constraint("DistanceY", 7, 3, -1, 1, 1.144599))
sketch1.addConstraint(Sketcher.Constraint("DistanceY", -1, 1, 17, 3, 1.144599))
sketch1.addConstraint(Sketcher.Constraint("DistanceY", 19, 3, -1, 1, 9.791499))
sketch1.addConstraint(Sketcher.Constraint("DistanceX", 29, 3, -1, 1, 9.791499))
sketch1.addConstraint(Sketcher.Constraint("DistanceX", -1, 1, 31, 3, 1.144599))
sketch1.addConstraint(Sketcher.Constraint("DistanceX", 41, 3, -1, 1, 1.144599))
sketch1.addConstraint(Sketcher.Constraint("DistanceX", -1, 1, 43, 3, 9.791499))
sketch1.addConstraint(Sketcher.Constraint("DistanceY", 53, 3, -1, 1, 9.791499))
sketch1.addConstraint(Sketcher.Constraint("DistanceY", -1, 1, 55, 3, 1.144599))
sketch1.addConstraint(Sketcher.Constraint("DistanceX", 0, 3, -1, 1, 0.000108))
sketch1.addConstraint(Sketcher.Constraint("DistanceX", 4, 3, -1, 1, 0.000108))
sketch1.addConstraint(Sketcher.Constraint("DistanceX", -1, 1, 5, 3, 12.702672))
sketch1.addConstraint(Sketcher.Constraint("DistanceX", 7, 3, -1, 1, 12.702672))
sketch1.addConstraint(Sketcher.Constraint("DistanceY", -1, 1, 9, 3, 7.342588))
sketch1.addConstraint(Sketcher.Constraint("DistanceY", 11, 3, -1, 1, 4.393291))
sketch1.addConstraint(Sketcher.Constraint("DistanceY", -1, 1, 13, 3, 4.393291))
sketch1.addConstraint(Sketcher.Constraint("DistanceY", 15, 3, -1, 1, 7.342588))
sketch1.addConstraint(Sketcher.Constraint("DistanceX", 17, 3, -1, 1, 12.702672))
sketch1.addConstraint(Sketcher.Constraint("DistanceX", 19, 3, -1, 1, 8.172791))
sketch1.addConstraint(Sketcher.Constraint("DistanceY", 29, 3, -1, 1, 8.172791))
sketch1.addConstraint(Sketcher.Constraint("DistanceY", 31, 3, -1, 1, 12.702672))
sketch1.addConstraint(Sketcher.Constraint("DistanceX", 33, 3, -1, 1, 7.342588))
sketch1.addConstraint(Sketcher.Constraint("DistanceX", -1, 1, 35, 3, 4.393291))
sketch1.addConstraint(Sketcher.Constraint("DistanceX", 37, 3, -1, 1, 4.393291))
sketch1.addConstraint(Sketcher.Constraint("DistanceX", -1, 1, 39, 3, 7.342588))
sketch1.addConstraint(Sketcher.Constraint("DistanceY", 41, 3, -1, 1, 12.702672))
sketch1.addConstraint(Sketcher.Constraint("DistanceY", 43, 3, -1, 1, 8.172791))
sketch1.addConstraint(Sketcher.Constraint("DistanceX", -1, 1, 53, 3, 8.172791))
sketch1.addConstraint(Sketcher.Constraint("DistanceX", -1, 1, 55, 3, 12.702672))
sketch1.addConstraint(Sketcher.Constraint("DistanceX", 9, 2, -1, 1, 11.897952))
sketch1.addConstraint(Sketcher.Constraint("DistanceX", 14, 2, -1, 1, 11.897952))
sketch1.addConstraint(Sketcher.Constraint("DistanceY", 21, 2, -1, 1, 6.895419))
sketch1.addConstraint(Sketcher.Constraint("DistanceX", 22, 2, -1, 1, 9.23075))
sketch1.addConstraint(Sketcher.Constraint("DistanceY", 25, 2, -1, 1, 9.23075))
sketch1.addConstraint(Sketcher.Constraint("DistanceX", 26, 2, -1, 1, 6.895419))
sketch1.addConstraint(Sketcher.Constraint("DistanceY", 33, 2, -1, 1, 11.897952))
sketch1.addConstraint(Sketcher.Constraint("DistanceY", 38, 2, -1, 1, 11.897952))
sketch1.addConstraint(Sketcher.Constraint("DistanceX", -1, 1, 45, 2, 6.895419))
sketch1.addConstraint(Sketcher.Constraint("DistanceY", 46, 2, -1, 1, 9.23075))
sketch1.addConstraint(Sketcher.Constraint("DistanceX", -1, 1, 49, 2, 9.23075))
sketch1.addConstraint(Sketcher.Constraint("DistanceY", 50, 2, -1, 1, 6.895419))
sketch1.addConstraint(Sketcher.Constraint("DistanceX", 21, 3, -1, 1, 12.566083))
sketch1.addConstraint(Sketcher.Constraint("DistanceX", 23, 3, -1, 1, 5.360084))
sketch1.addConstraint(Sketcher.Constraint("DistanceX", 25, 3, -1, 1, 11.573136))
sketch1.addConstraint(Sketcher.Constraint("DistanceX", 27, 3, -1, 1, 2.182095))
sketch1.addConstraint(Sketcher.Constraint("DistanceX", -1, 1, 45, 3, 2.182095))
sketch1.addConstraint(Sketcher.Constraint("DistanceX", -1, 1, 47, 3, 11.573136))
sketch1.addConstraint(Sketcher.Constraint("DistanceX", -1, 1, 49, 3, 5.360084))
sketch1.addConstraint(Sketcher.Constraint("DistanceX", -1, 1, 51, 3, 12.566083))
sketch1.setExpression("Constraints[86]", "Params.sketch1_radius")
sketch1.setExpression("Constraints[87]", "Params.sketch1_diameter")
sketch1.setExpression("Constraints[88]", "Params.sketch1_diameter2")
sketch1.setExpression("Constraints[89]", "Params.sketch1_radius2")
sketch1.setExpression("Constraints[90]", "Params.sketch1_radius3")
pad1 = body.newObject("PartDesign::Pad", "Pad")
pad1.Profile = sketch1
pad1.setExpression("Length", "Params.pad1_length")

# Sketch on XY plane
sketch2 = body.newObject("Sketcher::SketchObject", "Sketch001")
sketch2.AttachmentSupport = (doc.getObject("XY_Plane"), [""])
sketch2.MapMode = "FlatFace"
sketch2.AttachmentOffset = App.Placement(V(0, 0, 4), App.Rotation())
sketch2.addGeometry(Part.Circle(V(4.5, 0, 0), V(0, 0, 1), 1.3), False)
sketch2.addGeometry(Part.Circle(V(-4.5, 0, 0), V(0, 0, 1), 1.3), False)
sketch2.addGeometry(Part.Circle(V(0, 0, 0), V(0, 0, 1), 2.4), False)
sketch2.addConstraint(Sketcher.Constraint("Coincident", 2, 3, -1, 1))
sketch2.addConstraint(Sketcher.Constraint("Equal", 0, 1))
sketch2.addConstraint(Sketcher.Constraint("Symmetric", 0, 3, 1, 3, -1, 1))
sketch2.addConstraint(Sketcher.Constraint("PointOnObject", 0, 3, -1))
sketch2.addConstraint(Sketcher.Constraint("Diameter", 0, 2.6))
sketch2.addConstraint(Sketcher.Constraint("Diameter", 2, 4.8))
sketch2.addConstraint(Sketcher.Constraint("DistanceX", 1, 3, 0, 3, 9.0))
sketch2.setExpression("Constraints[4]", "Params.sketch2_diameter")
sketch2.setExpression("Constraints[5]", "Params.sketch2_diameter2")
pocket1 = body.newObject("PartDesign::Pocket", "Pocket")
pocket1.Profile = sketch2
pocket1.Type = "ThroughAll"

doc.recompute()
